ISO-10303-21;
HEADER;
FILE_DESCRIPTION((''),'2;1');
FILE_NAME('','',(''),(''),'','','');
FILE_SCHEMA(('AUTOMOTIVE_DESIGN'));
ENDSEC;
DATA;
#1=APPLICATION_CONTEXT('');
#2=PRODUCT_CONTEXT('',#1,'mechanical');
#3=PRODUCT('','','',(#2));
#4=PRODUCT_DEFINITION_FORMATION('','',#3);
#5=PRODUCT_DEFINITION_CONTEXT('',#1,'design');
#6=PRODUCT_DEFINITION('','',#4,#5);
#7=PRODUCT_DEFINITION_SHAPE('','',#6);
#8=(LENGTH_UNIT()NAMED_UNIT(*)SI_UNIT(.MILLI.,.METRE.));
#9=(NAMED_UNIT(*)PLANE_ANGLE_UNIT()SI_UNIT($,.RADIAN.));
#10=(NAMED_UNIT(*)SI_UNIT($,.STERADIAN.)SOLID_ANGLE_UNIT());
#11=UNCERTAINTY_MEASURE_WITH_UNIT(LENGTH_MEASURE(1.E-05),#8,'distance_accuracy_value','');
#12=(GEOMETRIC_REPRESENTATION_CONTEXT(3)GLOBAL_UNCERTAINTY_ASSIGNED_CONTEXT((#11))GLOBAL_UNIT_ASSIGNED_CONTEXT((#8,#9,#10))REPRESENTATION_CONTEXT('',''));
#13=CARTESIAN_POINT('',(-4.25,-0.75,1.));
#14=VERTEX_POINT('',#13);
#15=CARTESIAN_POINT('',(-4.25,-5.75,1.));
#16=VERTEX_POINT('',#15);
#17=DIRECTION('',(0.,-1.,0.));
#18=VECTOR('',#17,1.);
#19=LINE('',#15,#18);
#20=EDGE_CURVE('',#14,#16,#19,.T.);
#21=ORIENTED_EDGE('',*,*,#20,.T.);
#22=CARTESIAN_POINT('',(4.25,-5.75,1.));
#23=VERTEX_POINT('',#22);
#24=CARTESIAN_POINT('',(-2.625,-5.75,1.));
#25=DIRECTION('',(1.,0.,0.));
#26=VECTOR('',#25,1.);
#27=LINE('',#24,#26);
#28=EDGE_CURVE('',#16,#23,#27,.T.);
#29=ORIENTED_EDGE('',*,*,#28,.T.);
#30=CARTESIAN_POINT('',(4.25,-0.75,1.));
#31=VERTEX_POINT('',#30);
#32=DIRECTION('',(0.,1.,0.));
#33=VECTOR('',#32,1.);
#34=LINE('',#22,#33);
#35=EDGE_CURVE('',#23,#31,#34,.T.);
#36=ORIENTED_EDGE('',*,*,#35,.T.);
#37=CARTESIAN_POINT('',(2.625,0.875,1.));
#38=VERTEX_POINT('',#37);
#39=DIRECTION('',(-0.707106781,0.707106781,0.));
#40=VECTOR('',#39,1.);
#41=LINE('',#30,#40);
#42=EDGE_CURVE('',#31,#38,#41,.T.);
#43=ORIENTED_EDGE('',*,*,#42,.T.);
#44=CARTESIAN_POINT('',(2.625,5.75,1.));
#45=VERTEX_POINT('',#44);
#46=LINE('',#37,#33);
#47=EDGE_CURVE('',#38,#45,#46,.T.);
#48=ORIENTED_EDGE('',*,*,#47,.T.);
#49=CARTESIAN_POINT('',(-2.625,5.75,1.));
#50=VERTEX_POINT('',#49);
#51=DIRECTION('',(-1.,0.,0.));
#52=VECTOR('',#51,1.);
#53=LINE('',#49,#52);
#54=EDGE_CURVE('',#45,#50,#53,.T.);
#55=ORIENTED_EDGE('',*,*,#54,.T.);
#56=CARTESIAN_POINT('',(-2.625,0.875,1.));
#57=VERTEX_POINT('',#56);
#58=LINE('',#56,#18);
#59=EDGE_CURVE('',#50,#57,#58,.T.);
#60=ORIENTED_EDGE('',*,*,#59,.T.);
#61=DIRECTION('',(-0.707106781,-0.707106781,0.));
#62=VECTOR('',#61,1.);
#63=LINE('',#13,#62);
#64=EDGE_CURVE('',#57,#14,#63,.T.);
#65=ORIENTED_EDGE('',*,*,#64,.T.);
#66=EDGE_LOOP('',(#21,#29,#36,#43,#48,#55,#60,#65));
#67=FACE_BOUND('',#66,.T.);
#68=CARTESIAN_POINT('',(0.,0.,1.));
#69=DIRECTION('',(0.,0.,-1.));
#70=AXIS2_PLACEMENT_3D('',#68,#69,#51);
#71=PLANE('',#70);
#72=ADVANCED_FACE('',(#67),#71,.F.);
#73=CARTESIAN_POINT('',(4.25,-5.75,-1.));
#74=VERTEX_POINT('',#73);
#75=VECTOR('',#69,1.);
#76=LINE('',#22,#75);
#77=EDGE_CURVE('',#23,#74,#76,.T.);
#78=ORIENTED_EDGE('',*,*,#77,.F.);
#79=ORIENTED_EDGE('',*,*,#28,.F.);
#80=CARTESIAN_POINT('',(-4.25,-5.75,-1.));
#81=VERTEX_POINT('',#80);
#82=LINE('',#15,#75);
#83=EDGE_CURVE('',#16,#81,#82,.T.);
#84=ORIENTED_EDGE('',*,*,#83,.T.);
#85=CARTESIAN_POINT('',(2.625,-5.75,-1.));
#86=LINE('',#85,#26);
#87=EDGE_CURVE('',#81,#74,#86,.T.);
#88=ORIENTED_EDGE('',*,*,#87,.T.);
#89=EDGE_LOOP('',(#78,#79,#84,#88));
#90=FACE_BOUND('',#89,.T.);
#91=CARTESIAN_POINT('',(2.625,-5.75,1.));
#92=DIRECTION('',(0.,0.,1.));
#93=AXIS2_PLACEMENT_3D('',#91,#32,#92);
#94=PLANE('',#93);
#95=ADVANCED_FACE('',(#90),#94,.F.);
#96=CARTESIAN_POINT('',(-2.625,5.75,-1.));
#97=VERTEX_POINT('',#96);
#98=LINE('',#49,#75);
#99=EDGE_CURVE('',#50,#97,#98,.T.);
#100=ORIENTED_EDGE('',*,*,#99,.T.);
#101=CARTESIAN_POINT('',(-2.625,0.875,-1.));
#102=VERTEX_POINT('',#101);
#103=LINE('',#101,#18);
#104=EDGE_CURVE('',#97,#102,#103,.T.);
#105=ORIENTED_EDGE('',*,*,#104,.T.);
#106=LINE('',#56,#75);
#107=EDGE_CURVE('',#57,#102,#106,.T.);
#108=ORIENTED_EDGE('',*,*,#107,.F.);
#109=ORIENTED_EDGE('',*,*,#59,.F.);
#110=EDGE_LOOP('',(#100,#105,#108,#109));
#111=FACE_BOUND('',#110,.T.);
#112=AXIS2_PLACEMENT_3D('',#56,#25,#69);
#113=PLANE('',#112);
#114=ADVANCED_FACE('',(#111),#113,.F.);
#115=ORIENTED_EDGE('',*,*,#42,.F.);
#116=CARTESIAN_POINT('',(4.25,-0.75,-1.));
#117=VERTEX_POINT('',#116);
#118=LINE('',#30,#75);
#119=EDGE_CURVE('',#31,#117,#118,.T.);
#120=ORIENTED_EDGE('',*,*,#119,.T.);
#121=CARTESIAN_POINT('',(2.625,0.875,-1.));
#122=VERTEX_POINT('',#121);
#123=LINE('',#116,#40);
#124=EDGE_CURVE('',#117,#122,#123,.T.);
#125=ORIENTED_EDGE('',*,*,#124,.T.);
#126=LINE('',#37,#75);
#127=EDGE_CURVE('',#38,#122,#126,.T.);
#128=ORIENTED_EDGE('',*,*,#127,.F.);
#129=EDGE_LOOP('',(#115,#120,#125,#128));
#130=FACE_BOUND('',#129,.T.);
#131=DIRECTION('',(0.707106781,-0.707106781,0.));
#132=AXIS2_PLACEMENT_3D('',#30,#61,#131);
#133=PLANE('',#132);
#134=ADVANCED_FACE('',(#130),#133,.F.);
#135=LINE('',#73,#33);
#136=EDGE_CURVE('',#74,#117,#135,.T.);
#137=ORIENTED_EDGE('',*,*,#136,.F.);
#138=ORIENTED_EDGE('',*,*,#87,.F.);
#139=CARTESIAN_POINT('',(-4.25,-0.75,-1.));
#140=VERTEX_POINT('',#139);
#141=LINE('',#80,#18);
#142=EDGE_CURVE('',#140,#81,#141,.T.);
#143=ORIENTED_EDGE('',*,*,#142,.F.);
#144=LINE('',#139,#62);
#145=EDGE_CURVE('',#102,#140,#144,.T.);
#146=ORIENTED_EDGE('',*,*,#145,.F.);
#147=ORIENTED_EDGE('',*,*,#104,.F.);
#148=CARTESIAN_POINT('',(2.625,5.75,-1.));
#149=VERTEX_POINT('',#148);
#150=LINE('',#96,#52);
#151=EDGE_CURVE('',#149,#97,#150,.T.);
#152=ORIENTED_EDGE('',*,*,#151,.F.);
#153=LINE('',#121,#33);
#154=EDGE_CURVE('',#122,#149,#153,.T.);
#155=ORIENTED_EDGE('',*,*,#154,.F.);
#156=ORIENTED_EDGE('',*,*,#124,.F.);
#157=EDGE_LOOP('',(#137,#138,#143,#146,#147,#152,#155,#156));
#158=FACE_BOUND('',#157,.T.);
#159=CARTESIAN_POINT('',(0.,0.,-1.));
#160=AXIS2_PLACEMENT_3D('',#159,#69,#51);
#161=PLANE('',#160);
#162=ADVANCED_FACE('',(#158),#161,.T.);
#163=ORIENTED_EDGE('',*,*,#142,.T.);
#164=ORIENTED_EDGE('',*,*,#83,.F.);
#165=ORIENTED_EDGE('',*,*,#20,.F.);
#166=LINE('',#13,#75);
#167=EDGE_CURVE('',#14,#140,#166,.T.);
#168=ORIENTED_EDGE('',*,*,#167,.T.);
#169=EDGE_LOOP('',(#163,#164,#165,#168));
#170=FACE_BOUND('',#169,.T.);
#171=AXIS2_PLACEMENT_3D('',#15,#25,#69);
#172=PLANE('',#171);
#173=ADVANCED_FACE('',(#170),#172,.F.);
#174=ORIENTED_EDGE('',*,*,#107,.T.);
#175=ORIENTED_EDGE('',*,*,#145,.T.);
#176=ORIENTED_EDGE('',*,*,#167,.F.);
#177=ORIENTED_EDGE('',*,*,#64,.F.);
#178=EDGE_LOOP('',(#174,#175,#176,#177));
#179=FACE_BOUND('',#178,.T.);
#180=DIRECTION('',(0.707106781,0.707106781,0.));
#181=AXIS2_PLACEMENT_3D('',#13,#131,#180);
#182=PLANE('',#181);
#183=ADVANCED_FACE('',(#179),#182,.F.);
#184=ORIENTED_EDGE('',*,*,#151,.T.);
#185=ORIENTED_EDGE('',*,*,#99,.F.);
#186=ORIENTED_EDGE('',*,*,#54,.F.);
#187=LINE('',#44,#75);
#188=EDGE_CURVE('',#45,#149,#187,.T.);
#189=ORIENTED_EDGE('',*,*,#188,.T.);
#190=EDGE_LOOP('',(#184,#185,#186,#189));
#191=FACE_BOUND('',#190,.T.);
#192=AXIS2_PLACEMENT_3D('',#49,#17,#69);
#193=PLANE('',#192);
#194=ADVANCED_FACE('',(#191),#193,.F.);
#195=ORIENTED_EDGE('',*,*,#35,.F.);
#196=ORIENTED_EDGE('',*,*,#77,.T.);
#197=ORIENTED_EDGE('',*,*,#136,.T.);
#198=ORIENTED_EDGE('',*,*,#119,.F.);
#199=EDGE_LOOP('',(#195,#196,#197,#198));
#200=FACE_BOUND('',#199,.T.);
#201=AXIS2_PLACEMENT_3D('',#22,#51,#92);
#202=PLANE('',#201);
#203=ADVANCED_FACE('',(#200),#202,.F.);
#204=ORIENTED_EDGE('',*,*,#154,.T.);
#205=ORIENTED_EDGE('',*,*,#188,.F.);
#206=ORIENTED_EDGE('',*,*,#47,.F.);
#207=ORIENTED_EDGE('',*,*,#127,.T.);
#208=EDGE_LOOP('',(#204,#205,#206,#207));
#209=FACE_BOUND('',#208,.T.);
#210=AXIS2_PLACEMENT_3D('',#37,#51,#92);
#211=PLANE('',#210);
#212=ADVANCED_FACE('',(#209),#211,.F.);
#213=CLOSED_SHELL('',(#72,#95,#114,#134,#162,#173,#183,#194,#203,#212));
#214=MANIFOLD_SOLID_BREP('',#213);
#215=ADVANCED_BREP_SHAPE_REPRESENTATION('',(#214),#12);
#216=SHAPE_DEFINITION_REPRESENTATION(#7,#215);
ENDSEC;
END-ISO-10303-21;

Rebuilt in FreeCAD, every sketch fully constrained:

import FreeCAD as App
import Part
import Sketcher

V = App.Vector
Q = App.Units.Quantity


def add_polygon(sketch, points):
    """Adds a closed chain of lines whose ends are joined by coincident constraints."""
    first, n = sketch.GeometryCount, len(points)
    for a, b in zip(points, points[1:] + points[:1]):
        sketch.addGeometry(Part.LineSegment(App.Vector(*a, 0), App.Vector(*b, 0)), False)
    for i in range(n):
        sketch.addConstraint(Sketcher.Constraint("Coincident", first + i, 2, first + (i + 1) % n, 1))

doc = App.newDocument("Part")
body = doc.addObject("PartDesign::Body", "Body")

# Sketch on XY plane
sketch1 = body.newObject("Sketcher::SketchObject", "Sketch")
sketch1.AttachmentSupport = (doc.getObject("XY_Plane"), [""])
sketch1.MapMode = "FlatFace"
add_polygon(sketch1, [(4.2, -5.8), (4.2, -0.8), (2.6, 0.9), (2.6, 5.8), (-2.6, 5.8), (-2.6, 0.9), (-4.2, -0.8), (-4.2, -5.8)])  # lines 0-7
sketch1.addConstraint([
    Sketcher.Constraint("Vertical", 0),
    Sketcher.Constraint("Vertical", 2),
    Sketcher.Constraint("Horizontal", 3),
    Sketcher.Constraint("Vertical", 4),
    Sketcher.Constraint("Vertical", 6),
    Sketcher.Constraint("Horizontal", 7),
    Sketcher.Constraint("Symmetric", 1, 2, 4, 2, -2),
    Sketcher.Constraint("Symmetric", 0, 2, 5, 2, -2),
    Sketcher.Constraint("Perpendicular", 1, 5),
    Sketcher.Constraint("DistanceY", 0, 1, 0, 2, Q("5 mm")),
    Sketcher.Constraint("DistanceX", 7, 1, 7, 2, Q("8.5 mm")),
    Sketcher.Constraint("DistanceX", 3, 2, 3, 1, Q("5.25 mm")),
    Sketcher.Constraint("DistanceY", 0, 2, 2, 2, Q("6.5 mm")),
    Sketcher.Constraint("DistanceY", 0, 2, -1, 1, Q("0.75 mm")),
])
pad1 = body.newObject("PartDesign::Pad", "Pad")
pad1.Profile = sketch1
pad1.Length = 2
pad1.Midplane = True

doc.recompute()
